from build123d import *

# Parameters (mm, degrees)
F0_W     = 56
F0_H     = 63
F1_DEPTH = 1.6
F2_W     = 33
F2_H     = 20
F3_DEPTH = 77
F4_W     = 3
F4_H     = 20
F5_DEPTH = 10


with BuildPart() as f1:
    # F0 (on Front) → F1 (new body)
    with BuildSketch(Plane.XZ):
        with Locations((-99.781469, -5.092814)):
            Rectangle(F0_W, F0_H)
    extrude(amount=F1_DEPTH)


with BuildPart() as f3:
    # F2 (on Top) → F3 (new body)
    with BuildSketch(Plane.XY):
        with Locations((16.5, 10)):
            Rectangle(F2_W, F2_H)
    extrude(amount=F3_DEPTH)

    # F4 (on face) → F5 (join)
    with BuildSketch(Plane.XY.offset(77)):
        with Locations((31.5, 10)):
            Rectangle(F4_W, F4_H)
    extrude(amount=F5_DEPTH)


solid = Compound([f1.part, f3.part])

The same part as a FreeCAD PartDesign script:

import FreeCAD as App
import Part
import Sketcher
from FreeCAD import Vector


def add_polygon(sketch, points):
    """Adds a closed chain of lines whose ends are joined by coincident constraints."""
    first, n = sketch.GeometryCount, len(points)
    for a, b in zip(points, points[1:] + points[:1]):
        sketch.addGeometry(Part.LineSegment(App.Vector(*a, 0), App.Vector(*b, 0)), False)
    for i in range(n):
        sketch.addConstraint(Sketcher.Constraint("Coincident", first + i, 2, first + (i + 1) % n, 1))

doc = App.newDocument("Part")
body = doc.addObject("PartDesign::Body", "Body")

sketch1 = body.newObject("Sketcher::SketchObject", "Sketch")
sketch1.AttachmentSupport = (doc.getObject("XZ_Plane"), [""])
sketch1.MapMode = "FlatFace"
add_polygon(sketch1, [(-127.781469, 26.407186), (-127.781469, -36.592814), (-71.781469, -36.592814), (-71.781469, 26.407186)])
sketch1.addConstraint([
    Sketcher.Constraint("Vertical", 0),
    Sketcher.Constraint("Horizontal", 1),
    Sketcher.Constraint("Vertical", 2),
    Sketcher.Constraint("Horizontal", 3),
    Sketcher.Constraint("DistanceX", 1, 1, 1, 2, 56.0),
    Sketcher.Constraint("DistanceY", 0, 2, 0, 1, 63.0),
    Sketcher.Constraint("DistanceX", 0, 2, -1, 1, 127.781469),
    Sketcher.Constraint("DistanceY", 0, 2, -1, 1, 36.592814),
])
pad1 = body.newObject("PartDesign::Pad", "Pad")
pad1.Profile = sketch1
pad1.Length = 1.6
body2 = doc.addObject("PartDesign::Body", "Body001")

sketch2 = body2.newObject("Sketcher::SketchObject", "Sketch001")
sketch2.AttachmentSupport = (doc.getObject("XY_Plane001"), [""])
sketch2.MapMode = "FlatFace"
add_polygon(sketch2, [(0, 20), (0, 0), (33, 0), (33, 20)])
sketch2.addConstraint([
    Sketcher.Constraint("Vertical", 0),
    Sketcher.Constraint("Horizontal", 1),
    Sketcher.Constraint("Vertical", 2),
    Sketcher.Constraint("Horizontal", 3),
    Sketcher.Constraint("Coincident", 0, 2, -1, 1),
    Sketcher.Constraint("DistanceX", 1, 1, 1, 2, 33.0),
    Sketcher.Constraint("DistanceY", 0, 2, 0, 1, 20.0),
])
pad2 = body2.newObject("PartDesign::Pad", "Pad001")
pad2.Profile = sketch2
pad2.Length = 77

sketch3 = body2.newObject("Sketcher::SketchObject", "Sketch002")
sketch3.AttachmentSupport = (doc.getObject("XY_Plane001"), [""])
sketch3.MapMode = "FlatFace"
sketch3.AttachmentOffset = App.Placement(Vector(0, 0, 77), App.Rotation())
add_polygon(sketch3, [(30, 20), (30, 0), (33, 0), (33, 20)])
sketch3.addConstraint([
    Sketcher.Constraint("Vertical", 0),
    Sketcher.Constraint("Horizontal", 1),
    Sketcher.Constraint("Vertical", 2),
    Sketcher.Constraint("Horizontal", 3),
    Sketcher.Constraint("PointOnObject", 0, 2, -1),
    Sketcher.Constraint("DistanceX", 1, 1, 1, 2, 3.0),
    Sketcher.Constraint("DistanceY", 0, 2, 0, 1, 20.0),
    Sketcher.Constraint("DistanceX", -1, 1, 0, 2, 30.0),
])
pad3 = body2.newObject("PartDesign::Pad", "Pad002")
pad3.Profile = sketch3
pad3.Length = 10

doc.recompute()
